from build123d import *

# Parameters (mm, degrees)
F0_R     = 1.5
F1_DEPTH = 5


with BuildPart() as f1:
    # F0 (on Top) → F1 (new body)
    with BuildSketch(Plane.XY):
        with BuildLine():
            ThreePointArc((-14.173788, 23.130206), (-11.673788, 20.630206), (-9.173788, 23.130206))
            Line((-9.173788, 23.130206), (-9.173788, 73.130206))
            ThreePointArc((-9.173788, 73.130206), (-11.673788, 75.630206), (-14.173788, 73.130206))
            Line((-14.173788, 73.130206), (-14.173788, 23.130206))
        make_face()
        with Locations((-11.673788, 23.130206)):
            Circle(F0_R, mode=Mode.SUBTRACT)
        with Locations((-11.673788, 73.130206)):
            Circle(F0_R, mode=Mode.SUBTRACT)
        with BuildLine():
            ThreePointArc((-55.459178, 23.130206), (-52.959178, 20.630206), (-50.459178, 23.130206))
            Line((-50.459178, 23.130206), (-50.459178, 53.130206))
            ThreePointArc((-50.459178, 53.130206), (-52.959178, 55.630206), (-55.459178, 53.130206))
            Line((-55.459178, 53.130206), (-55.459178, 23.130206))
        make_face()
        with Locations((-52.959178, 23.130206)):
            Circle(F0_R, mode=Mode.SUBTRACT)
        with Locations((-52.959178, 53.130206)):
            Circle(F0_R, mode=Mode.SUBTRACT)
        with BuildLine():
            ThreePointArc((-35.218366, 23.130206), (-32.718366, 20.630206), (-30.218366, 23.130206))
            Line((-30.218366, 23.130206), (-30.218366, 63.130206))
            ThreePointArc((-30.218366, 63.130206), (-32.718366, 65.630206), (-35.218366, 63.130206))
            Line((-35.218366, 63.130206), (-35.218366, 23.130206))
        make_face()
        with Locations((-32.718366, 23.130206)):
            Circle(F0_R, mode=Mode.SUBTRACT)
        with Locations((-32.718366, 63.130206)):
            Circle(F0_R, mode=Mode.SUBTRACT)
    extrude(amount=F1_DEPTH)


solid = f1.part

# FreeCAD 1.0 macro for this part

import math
import FreeCAD as App
import Part
import Sketcher

V = App.Vector
Q = App.Units.Quantity

doc = App.newDocument("Part")
params = doc.addObject("Spreadsheet::Sheet", "Params")
for row, (alias, value) in enumerate([
    ("sketch1_diameter", "3 mm"),
    ("sketch1_radius", "2.5 mm"),
    ("sketch1_height", "50 mm"),
    ("sketch1_height2", "30 mm"),
    ("sketch1_height3", "40 mm"),
    ("pad1_length", "5 mm"),
], start=1):
    params.set(f"A{row}", alias)
    params.set(f"B{row}", "=" + value)
    params.setAlias(f"B{row}", alias)

body = doc.addObject("PartDesign::Body", "Body")
body.AllowCompound = True

# Sketch on XY plane
sketch1 = body.newObject("Sketcher::SketchObject", "Sketch")
sketch1.AttachmentSupport = (doc.getObject("XY_Plane"), [""])
sketch1.MapMode = "FlatFace"
sketch1.addGeometry([
    Part.ArcOfCircle(Part.Circle(V(-11.673788, 23.130206, 0), V(0, 0, 1), 2.5), math.radians(180), math.radians(360)),  # 0
    Part.LineSegment(V(-9.173788, 23.130206, 0), V(-9.173788, 73.130206, 0)),  # 1
    Part.ArcOfCircle(Part.Circle(V(-11.673788, 73.130206, 0), V(0, 0, 1), 2.5), math.radians(0), math.radians(180)),  # 2
    Part.LineSegment(V(-14.173788, 73.130206, 0), V(-14.173788, 23.130206, 0)),  # 3
    Part.Circle(V(-11.673788, 23.130206, 0), V(0, 0, 1), 1.5),  # 4
    Part.Circle(V(-11.673788, 73.130206, 0), V(0, 0, 1), 1.5),  # 5
    Part.ArcOfCircle(Part.Circle(V(-52.959178, 23.130206, 0), V(0, 0, 1), 2.5), math.radians(180), math.radians(360)),  # 6
    Part.LineSegment(V(-50.459178, 23.130206, 0), V(-50.459178, 53.130206, 0)),  # 7
    Part.ArcOfCircle(Part.Circle(V(-52.959178, 53.130206, 0), V(0, 0, 1), 2.5), math.radians(0), math.radians(180)),  # 8
    Part.LineSegment(V(-55.459178, 53.130206, 0), V(-55.459178, 23.130206, 0)),  # 9
    Part.Circle(V(-52.959178, 23.130206, 0), V(0, 0, 1), 1.5),  # 10
    Part.Circle(V(-52.959178, 53.130206, 0), V(0, 0, 1), 1.5),  # 11
    Part.ArcOfCircle(Part.Circle(V(-32.718366, 23.130206, 0), V(0, 0, 1), 2.5), math.radians(180), math.radians(360)),  # 12
    Part.LineSegment(V(-30.218366, 23.130206, 0), V(-30.218366, 63.130206, 0)),  # 13
    Part.ArcOfCircle(Part.Circle(V(-32.718366, 63.130206, 0), V(0, 0, 1), 2.5), math.radians(0), math.radians(180)),  # 14
    Part.LineSegment(V(-35.218366, 63.130206, 0), V(-35.218366, 23.130206, 0)),  # 15
    Part.Circle(V(-32.718366, 23.130206, 0), V(0, 0, 1), 1.5),  # 16
    Part.Circle(V(-32.718366, 63.130206, 0), V(0, 0, 1), 1.5),  # 17
], False)
sketch1.addConstraint([
    Sketcher.Constraint("Tangent", 0, 2, 1, 1),
    Sketcher.Constraint("Tangent", 1, 2, 2, 1),
    Sketcher.Constraint("Tangent", 2, 2, 3, 1),
    Sketcher.Constraint("Tangent", 3, 2, 0, 1),
    Sketcher.Constraint("Tangent", 6, 2, 7, 1),
    Sketcher.Constraint("Tangent", 7, 2, 8, 1),
    Sketcher.Constraint("Tangent", 8, 2, 9, 1),
    Sketcher.Constraint("Tangent", 9, 2, 6, 1),
    Sketcher.Constraint("Tangent", 12, 2, 13, 1),
    Sketcher.Constraint("Tangent", 13, 2, 14, 1),
    Sketcher.Constraint("Tangent", 14, 2, 15, 1),
    Sketcher.Constraint("Tangent", 15, 2, 12, 1),
    Sketcher.Constraint("Vertical", 1),
    Sketcher.Constraint("Vertical", 3),
    Sketcher.Constraint("Vertical", 7),
    Sketcher.Constraint("Vertical", 9),
    Sketcher.Constraint("Vertical", 13),
    Sketcher.Constraint("Vertical", 15),
    Sketcher.Constraint("Coincident", 4, 3, 0, 3),
    Sketcher.Constraint("Coincident", 5, 3, 2, 3),
    Sketcher.Constraint("Coincident", 10, 3, 6, 3),
    Sketcher.Constraint("Coincident", 11, 3, 8, 3),
    Sketcher.Constraint("Coincident", 16, 3, 12, 3),
    Sketcher.Constraint("Coincident", 17, 3, 14, 3),
    Sketcher.Constraint("Equal", 4, 5),
    Sketcher.Constraint("Equal", 2, 6),
    Sketcher.Constraint("Equal", 5, 10),
    Sketcher.Constraint("Equal", 10, 11),
    Sketcher.Constraint("Equal", 8, 12),
    Sketcher.Constraint("Equal", 11, 16),
    Sketcher.Constraint("Equal", 16, 17),
    Sketcher.Constraint("Horizontal", 4, 3, 6, 3),
    Sketcher.Constraint("Horizontal", 10, 3, 12, 3),
    Sketcher.Constraint("Diameter", 4, Q("3 mm")),
    Sketcher.Constraint("Radius", 0, Q("2.5 mm")),
    Sketcher.Constraint("DistanceY", 1, 1, 1, 2, Q("50 mm")),
    Sketcher.Constraint("DistanceY", 7, 1, 7, 2, Q("30 mm")),
    Sketcher.Constraint("DistanceY", 13, 1, 13, 2, Q("40 mm")),
    Sketcher.Constraint("DistanceX", 6, 3, 0, 3, Q("41.28539 mm")),
    Sketcher.Constraint("DistanceX", 6, 3, 12, 3, Q("20.240812 mm")),
    Sketcher.Constraint("DistanceX", 0, 3, -1, 1, Q("11.673788 mm")),
    Sketcher.Constraint("DistanceY", -1, 1, 0, 3, Q("23.130206 mm")),
])
sketch1.setExpression("Constraints[33]", "Params.sketch1_diameter")
sketch1.setExpression("Constraints[34]", "Params.sketch1_radius")
sketch1.setExpression("Constraints[35]", "Params.sketch1_height")
sketch1.setExpression("Constraints[36]", "Params.sketch1_height2")
sketch1.setExpression("Constraints[37]", "Params.sketch1_height3")
pad1 = body.newObject("PartDesign::Pad", "Pad")
pad1.Profile = sketch1
pad1.setExpression("Length", "Params.pad1_length")

doc.recompute()
